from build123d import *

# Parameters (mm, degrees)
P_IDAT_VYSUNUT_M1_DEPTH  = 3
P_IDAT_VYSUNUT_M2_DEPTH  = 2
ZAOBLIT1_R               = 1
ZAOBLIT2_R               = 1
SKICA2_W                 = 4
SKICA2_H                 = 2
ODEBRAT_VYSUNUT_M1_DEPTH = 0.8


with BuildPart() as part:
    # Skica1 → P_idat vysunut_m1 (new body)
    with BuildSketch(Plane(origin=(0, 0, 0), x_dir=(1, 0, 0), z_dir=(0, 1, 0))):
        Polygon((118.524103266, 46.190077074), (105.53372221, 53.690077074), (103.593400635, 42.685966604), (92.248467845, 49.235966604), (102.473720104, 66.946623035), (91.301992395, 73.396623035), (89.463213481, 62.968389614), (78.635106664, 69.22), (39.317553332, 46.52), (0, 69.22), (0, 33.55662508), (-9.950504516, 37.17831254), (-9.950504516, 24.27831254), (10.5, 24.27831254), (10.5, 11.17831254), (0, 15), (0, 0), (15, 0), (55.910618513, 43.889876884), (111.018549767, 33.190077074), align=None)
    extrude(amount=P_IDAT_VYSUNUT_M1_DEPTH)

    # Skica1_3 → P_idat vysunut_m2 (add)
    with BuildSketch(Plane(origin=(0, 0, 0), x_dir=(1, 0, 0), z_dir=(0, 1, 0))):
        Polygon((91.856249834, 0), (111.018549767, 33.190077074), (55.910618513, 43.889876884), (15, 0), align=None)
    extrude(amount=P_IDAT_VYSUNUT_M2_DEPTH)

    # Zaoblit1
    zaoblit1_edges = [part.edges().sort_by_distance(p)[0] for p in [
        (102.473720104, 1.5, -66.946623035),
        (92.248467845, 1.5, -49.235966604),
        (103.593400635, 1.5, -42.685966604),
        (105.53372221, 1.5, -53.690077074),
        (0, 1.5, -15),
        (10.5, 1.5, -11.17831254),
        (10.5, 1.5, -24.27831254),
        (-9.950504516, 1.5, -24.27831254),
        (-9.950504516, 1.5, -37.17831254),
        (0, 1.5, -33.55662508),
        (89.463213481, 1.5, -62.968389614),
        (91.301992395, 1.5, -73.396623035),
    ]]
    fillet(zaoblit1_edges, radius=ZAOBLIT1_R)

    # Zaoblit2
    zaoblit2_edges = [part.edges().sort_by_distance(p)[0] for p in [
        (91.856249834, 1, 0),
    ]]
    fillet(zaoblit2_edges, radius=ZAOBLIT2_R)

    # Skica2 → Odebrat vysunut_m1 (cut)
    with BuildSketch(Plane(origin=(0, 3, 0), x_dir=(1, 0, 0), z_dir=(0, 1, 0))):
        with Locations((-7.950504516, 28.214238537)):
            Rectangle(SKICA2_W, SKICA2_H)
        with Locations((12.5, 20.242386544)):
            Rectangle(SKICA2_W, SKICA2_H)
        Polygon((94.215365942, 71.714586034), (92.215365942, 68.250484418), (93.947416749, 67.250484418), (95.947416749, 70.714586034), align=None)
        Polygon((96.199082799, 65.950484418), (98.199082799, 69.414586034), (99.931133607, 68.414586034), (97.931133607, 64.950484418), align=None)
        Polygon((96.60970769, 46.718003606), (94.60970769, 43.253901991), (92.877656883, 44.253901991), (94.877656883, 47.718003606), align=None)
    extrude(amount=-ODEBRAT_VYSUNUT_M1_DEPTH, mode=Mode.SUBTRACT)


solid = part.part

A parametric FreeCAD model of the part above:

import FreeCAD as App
import Part
import Sketcher
Q = App.Units.Quantity


def edges_at(feature, points):
    """Names of the edges that pass closest to the given points."""
    edges = feature.Shape.Edges
    near = lambda p: min(range(len(edges)), key=lambda i: edges[i].distToShape(Part.Vertex(*p))[0])
    return sorted({f"Edge{near(p) + 1}" for p in points})

doc = App.newDocument("Part")
body = doc.addObject("PartDesign::Body", "Body")

# Sketch on XZ plane
sketch1 = doc.addObject("Sketcher::SketchObject", "Sketch")
body.addObject(sketch1)
sketch1.AttachmentSupport = (doc.XZ_Plane, [""])
sketch1.MapMode = "FlatFace"
sketch1.addGeometry([
    Part.LineSegment(App.Vector(119, -46, 0), App.Vector(106, -54, 0)),  # 0
    Part.LineSegment(App.Vector(106, -54, 0), App.Vector(104, -43, 0)),  # 1
    Part.LineSegment(App.Vector(104, -43, 0), App.Vector(92, -49, 0)),  # 2
    Part.LineSegment(App.Vector(92, -49, 0), App.Vector(102, -67, 0)),  # 3
    Part.LineSegment(App.Vector(102, -67, 0), App.Vector(91, -73, 0)),  # 4
    Part.LineSegment(App.Vector(91, -73, 0), App.Vector(89, -63, 0)),  # 5
    Part.LineSegment(App.Vector(89, -63, 0), App.Vector(79, -69, 0)),  # 6
    Part.LineSegment(App.Vector(79, -69, 0), App.Vector(39, -47, 0)),  # 7
    Part.LineSegment(App.Vector(39, -47, 0), App.Vector(0, -69, 0)),  # 8
    Part.LineSegment(App.Vector(0, -69, 0), App.Vector(0, -34, 0)),  # 9
    Part.LineSegment(App.Vector(0, -34, 0), App.Vector(-10, -37, 0)),  # 10
    Part.LineSegment(App.Vector(-10, -37, 0), App.Vector(-10, -24, 0)),  # 11
    Part.LineSegment(App.Vector(-10, -24, 0), App.Vector(10, -24, 0)),  # 12
    Part.LineSegment(App.Vector(10, -24, 0), App.Vector(10, -11, 0)),  # 13
    Part.LineSegment(App.Vector(10, -11, 0), App.Vector(0, -15, 0)),  # 14
    Part.LineSegment(App.Vector(0, -15, 0), App.Vector(0, 0, 0)),  # 15
    Part.LineSegment(App.Vector(0, 0, 0), App.Vector(15, 0, 0)),  # 16
    Part.LineSegment(App.Vector(15, 0, 0), App.Vector(56, -44, 0)),  # 17
    Part.LineSegment(App.Vector(56, -44, 0), App.Vector(111, -33, 0)),  # 18
    Part.LineSegment(App.Vector(111, -33, 0), App.Vector(119, -46, 0)),  # 19
], False)
sketch1.addConstraint([
    Sketcher.Constraint("Coincident", 0, 2, 1, 1),
    Sketcher.Constraint("Coincident", 1, 2, 2, 1),
    Sketcher.Constraint("Coincident", 2, 2, 3, 1),
    Sketcher.Constraint("Coincident", 3, 2, 4, 1),
    Sketcher.Constraint("Coincident", 4, 2, 5, 1),
    Sketcher.Constraint("Coincident", 5, 2, 6, 1),
    Sketcher.Constraint("Coincident", 6, 2, 7, 1),
    Sketcher.Constraint("Coincident", 7, 2, 8, 1),
    Sketcher.Constraint("Coincident", 8, 2, 9, 1),
    Sketcher.Constraint("Coincident", 9, 2, 10, 1),
    Sketcher.Constraint("Coincident", 10, 2, 11, 1),
    Sketcher.Constraint("Coincident", 11, 2, 12, 1),
    Sketcher.Constraint("Coincident", 12, 2, 13, 1),
    Sketcher.Constraint("Coincident", 13, 2, 14, 1),
    Sketcher.Constraint("Coincident", 14, 2, 15, 1),
    Sketcher.Constraint("Coincident", 15, 2, 16, 1),
    Sketcher.Constraint("Coincident", 16, 2, 17, 1),
    Sketcher.Constraint("Coincident", 17, 2, 18, 1),
    Sketcher.Constraint("Coincident", 18, 2, 19, 1),
    Sketcher.Constraint("Coincident", 19, 2, 0, 1),
    Sketcher.Constraint("Vertical", 9),
    Sketcher.Constraint("Vertical", 11),
    Sketcher.Constraint("Horizontal", 12),
    Sketcher.Constraint("Vertical", 13),
    Sketcher.Constraint("Vertical", 15),
    Sketcher.Constraint("Horizontal", 16),
    Sketcher.Constraint("Coincident", 15, 2, -1, 1),
    Sketcher.Constraint("PointOnObject", 8, 2, -2),
    Sketcher.Constraint("Parallel", 0, 2),
    Sketcher.Constraint("Perpendicular", 2, 3),
    Sketcher.Constraint("Perpendicular", 3, 4),
    Sketcher.Constraint("Parallel", 1, 5),
    Sketcher.Constraint("Parallel", 4, 6),
    Sketcher.Constraint("Parallel", 6, 8),
    Sketcher.Constraint("Parallel", 10, 14),
    Sketcher.Constraint("Perpendicular", 8, 19),
    Sketcher.Constraint("Horizontal", 6, 2, 8, 2),
    Sketcher.Constraint("Equal", 16, 15),
    Sketcher.Constraint("Equal", 7, 8),
    Sketcher.Constraint("Equal", 5, 10),
    Sketcher.Constraint("Equal", 1, 14),
    Sketcher.Constraint("DistanceX", 16, 1, 16, 2, 15.0),
    Sketcher.Constraint("Angle", 0, Q("-150 deg")),
    Sketcher.Constraint("Angle", 1, Q("100 deg")),
    Sketcher.Constraint("Angle", 10, Q("-160 deg")),
    Sketcher.Constraint("Distance", 0, 15.0),
    Sketcher.Constraint("Distance", 17, 60.0),
    Sketcher.Constraint("DistanceY", 11, 1, 11, 2, 12.9),
    Sketcher.Constraint("DistanceY", 13, 1, 13, 2, 13.1),
    Sketcher.Constraint("DistanceY", 19, 2, 18, 2, 13.0),
    Sketcher.Constraint("Distance", 2, 13.1),
    Sketcher.Constraint("Distance", 4, 12.9),
    Sketcher.Constraint("Distance", 7, 45.4),
    Sketcher.Constraint("DistanceX", -1, 1, 12, 2, 10.5),
    Sketcher.Constraint("DistanceY", 6, 2, -1, 1, 69.22),
    Sketcher.Constraint("DistanceX", -1, 1, 1, 2, 103.593401),
    Sketcher.Constraint("Distance", 6, 12.503221),
    Sketcher.Constraint("DistanceX", 12, 1, 12, 2, 20.450505),
    Sketcher.Constraint("DistanceX", -1, 1, 17, 2, 55.910619),
])
pad1 = doc.addObject("PartDesign::Pad", "Pad")
body.addObject(pad1)
pad1.Profile = sketch1
pad1.Length = 3
pad1.Reversed = True

# Sketch on XZ plane
sketch2 = doc.addObject("Sketcher::SketchObject", "Sketch001")
body.addObject(sketch2)
sketch2.AttachmentSupport = (doc.XZ_Plane, [""])
sketch2.MapMode = "FlatFace"
sketch2.addGeometry([
    Part.LineSegment(App.Vector(92, 0, 0), App.Vector(111, -33, 0)),
    Part.LineSegment(App.Vector(111, -33, 0), App.Vector(56, -44, 0)),
    Part.LineSegment(App.Vector(56, -44, 0), App.Vector(15, 0, 0)),
    Part.LineSegment(App.Vector(15, 0, 0), App.Vector(92, 0, 0)),
], False)
sketch2.addConstraint([
    Sketcher.Constraint("Coincident", 0, 2, 1, 1),
    Sketcher.Constraint("Coincident", 1, 2, 2, 1),
    Sketcher.Constraint("Coincident", 2, 2, 3, 1),
    Sketcher.Constraint("Coincident", 3, 2, 0, 1),
    Sketcher.Constraint("Horizontal", 3),
    Sketcher.Constraint("PointOnObject", 2, 2, -1),
    Sketcher.Constraint("Angle", 0, Q("-60 deg")),
    Sketcher.Constraint("Distance", 2, 60.0),
    Sketcher.Constraint("DistanceX", -1, 1, 2, 2, 15.0),
    Sketcher.Constraint("Distance", 0, 38.3246),
    Sketcher.Constraint("DistanceX", 3, 1, 3, 2, 76.85625),
    Sketcher.Constraint("DistanceY", 1, 2, 0, 2, 10.6998),
])
pad2 = doc.addObject("PartDesign::Pad", "Pad001")
body.addObject(pad2)
pad2.Profile = sketch2
pad2.Length = 2
pad2.Reversed = True
doc.recompute()

fillet = doc.addObject("PartDesign::Fillet", "Fillet")
body.addObject(fillet)
fillet.Base = (pad2, edges_at(pad2, [
    (102.474, 1.5, -66.947),
    (92.248, 1.5, -49.236),
    (103.593, 1.5, -42.686),
    (105.534, 1.5, -53.69),
    (0, 1.5, -15),
    (10.5, 1.5, -11.178),
    (10.5, 1.5, -24.278),
    (-9.951, 1.5, -24.278),
    (-9.951, 1.5, -37.178),
    (0, 1.5, -33.557),
    (89.463, 1.5, -62.968),
    (91.302, 1.5, -73.397),
]))
fillet.Radius = 1
doc.recompute()

fillet2 = doc.addObject("PartDesign::Fillet", "Fillet001")
body.addObject(fillet2)
fillet2.Base = (fillet, edges_at(fillet, [(91.856, 1, 0)]))
fillet2.Radius = 1

# Sketch on XZ plane
sketch3 = doc.addObject("Sketcher::SketchObject", "Sketch002")
body.addObject(sketch3)
sketch3.AttachmentSupport = (doc.XZ_Plane, [""])
sketch3.MapMode = "FlatFace"
sketch3.AttachmentOffset = App.Placement(App.Vector(0, 0, -3), App.Rotation())
sketch3.addGeometry([
    Part.LineSegment(App.Vector(-10, -29.2, 0), App.Vector(-10, -27.2, 0)),  # 0
    Part.LineSegment(App.Vector(-10, -27.2, 0), App.Vector(-6, -27.2, 0)),  # 1
    Part.LineSegment(App.Vector(-6, -27.2, 0), App.Vector(-6, -29.2, 0)),  # 2
    Part.LineSegment(App.Vector(-6, -29.2, 0), App.Vector(-10, -29.2, 0)),  # 3
    Part.LineSegment(App.Vector(10.5, -21.2, 0), App.Vector(10.5, -19.2, 0)),  # 4
    Part.LineSegment(App.Vector(10.5, -19.2, 0), App.Vector(14.5, -19.2, 0)),  # 5
    Part.LineSegment(App.Vector(14.5, -19.2, 0), App.Vector(14.5, -21.2, 0)),  # 6
    Part.LineSegment(App.Vector(14.5, -21.2, 0), App.Vector(10.5, -21.2, 0)),  # 7
    Part.LineSegment(App.Vector(94.2, -71.7, 0), App.Vector(92.2, -68.3, 0)),  # 8
    Part.LineSegment(App.Vector(92.2, -68.3, 0), App.Vector(93.9, -67.3, 0)),  # 9
    Part.LineSegment(App.Vector(93.9, -67.3, 0), App.Vector(95.9, -70.7, 0)),  # 10
    Part.LineSegment(App.Vector(95.9, -70.7, 0), App.Vector(94.2, -71.7, 0)),  # 11
    Part.LineSegment(App.Vector(98.2, -69.4, 0), App.Vector(96.2, -66, 0)),  # 12
    Part.LineSegment(App.Vector(96.2, -66, 0), App.Vector(97.9, -65, 0)),  # 13
    Part.LineSegment(App.Vector(97.9, -65, 0), App.Vector(99.9, -68.4, 0)),  # 14
    Part.LineSegment(App.Vector(99.9, -68.4, 0), App.Vector(98.2, -69.4, 0)),  # 15
    Part.LineSegment(App.Vector(94.6, -43.3, 0), App.Vector(96.6, -46.7, 0)),  # 16
    Part.LineSegment(App.Vector(96.6, -46.7, 0), App.Vector(94.9, -47.7, 0)),  # 17
    Part.LineSegment(App.Vector(94.9, -47.7, 0), App.Vector(92.9, -44.3, 0)),  # 18
    Part.LineSegment(App.Vector(92.9, -44.3, 0), App.Vector(94.6, -43.3, 0)),  # 19
], False)
sketch3.addConstraint([
    Sketcher.Constraint("Coincident", 0, 2, 1, 1),
    Sketcher.Constraint("Coincident", 1, 2, 2, 1),
    Sketcher.Constraint("Coincident", 2, 2, 3, 1),
    Sketcher.Constraint("Coincident", 3, 2, 0, 1),
    Sketcher.Constraint("Coincident", 4, 2, 5, 1),
    Sketcher.Constraint("Coincident", 5, 2, 6, 1),
    Sketcher.Constraint("Coincident", 6, 2, 7, 1),
    Sketcher.Constraint("Coincident", 7, 2, 4, 1),
    Sketcher.Constraint("Coincident", 8, 2, 9, 1),
    Sketcher.Constraint("Coincident", 9, 2, 10, 1),
    Sketcher.Constraint("Coincident", 10, 2, 11, 1),
    Sketcher.Constraint("Coincident", 11, 2, 8, 1),
    Sketcher.Constraint("Coincident", 12, 2, 13, 1),
    Sketcher.Constraint("Coincident", 13, 2, 14, 1),
    Sketcher.Constraint("Coincident", 14, 2, 15, 1),
    Sketcher.Constraint("Coincident", 15, 2, 12, 1),
    Sketcher.Constraint("Coincident", 16, 2, 17, 1),
    Sketcher.Constraint("Coincident", 17, 2, 18, 1),
    Sketcher.Constraint("Coincident", 18, 2, 19, 1),
    Sketcher.Constraint("Coincident", 19, 2, 16, 1),
    Sketcher.Constraint("Vertical", 0),
    Sketcher.Constraint("Horizontal", 1),
    Sketcher.Constraint("Vertical", 2),
    Sketcher.Constraint("Horizontal", 3),
    Sketcher.Constraint("Vertical", 4),
    Sketcher.Constraint("Horizontal", 5),
    Sketcher.Constraint("Vertical", 6),
    Sketcher.Constraint("Horizontal", 7),
    Sketcher.Constraint("Perpendicular", 8, 9),
    Sketcher.Constraint("Perpendicular", 9, 10),
    Sketcher.Constraint("Perpendicular", 10, 11),
    Sketcher.Constraint("Perpendicular", 11, 12),
    Sketcher.Constraint("Perpendicular", 12, 13),
    Sketcher.Constraint("Perpendicular", 13, 14),
    Sketcher.Constraint("Perpendicular", 14, 15),
    Sketcher.Constraint("Perpendicular", 15, 16),
    Sketcher.Constraint("Perpendicular", 16, 17),
    Sketcher.Constraint("Perpendicular", 17, 18),
    Sketcher.Constraint("Perpendicular", 18, 19),
    Sketcher.Constraint("Equal", 3, 5),
    Sketcher.Constraint("Equal", 2, 4),
    Sketcher.Constraint("Equal", 10, 12),
    Sketcher.Constraint("Equal", 11, 13),
    Sketcher.Constraint("Equal", 14, 16),
    Sketcher.Constraint("Equal", 15, 17),
    Sketcher.Constraint("DistanceX", 1, 1, 1, 2, 4.0),
    Sketcher.Constraint("DistanceY", 0, 1, 0, 2, 2.0),
    Sketcher.Constraint("Angle", 8, Q("120 deg")),
    Sketcher.Constraint("Distance", 8, 4.0),
    Sketcher.Constraint("Distance", 9, 2.0),
    Sketcher.Constraint("DistanceX", -1, 1, 4, 2, 10.5),
    Sketcher.Constraint("DistanceY", 9, 2, 12, 2, 1.3),
    Sketcher.Constraint("DistanceY", 18, 2, -1, 1, 44.253902),
    Sketcher.Constraint("DistanceY", 10, 2, 6, 2, 49.472199),
    Sketcher.Constraint("DistanceY", 0, 2, -1, 1, 27.214239),
    Sketcher.Constraint("DistanceY", 1, 2, 4, 2, 7.971852),
    Sketcher.Constraint("DistanceX", 2, 2, 8, 2, 98.16587),
    Sketcher.Constraint("DistanceX", 9, 2, 16, 2, 2.662291),
    Sketcher.Constraint("DistanceX", 0, 2, -1, 1, 9.950505),
    Sketcher.Constraint("DistanceX", -1, 1, 12, 2, 96.199083),
])
pocket1 = doc.addObject("PartDesign::Pocket", "Pocket")
body.addObject(pocket1)
pocket1.Profile = sketch3
pocket1.Length = 0.8
pocket1.Reversed = True

doc.recompute()
